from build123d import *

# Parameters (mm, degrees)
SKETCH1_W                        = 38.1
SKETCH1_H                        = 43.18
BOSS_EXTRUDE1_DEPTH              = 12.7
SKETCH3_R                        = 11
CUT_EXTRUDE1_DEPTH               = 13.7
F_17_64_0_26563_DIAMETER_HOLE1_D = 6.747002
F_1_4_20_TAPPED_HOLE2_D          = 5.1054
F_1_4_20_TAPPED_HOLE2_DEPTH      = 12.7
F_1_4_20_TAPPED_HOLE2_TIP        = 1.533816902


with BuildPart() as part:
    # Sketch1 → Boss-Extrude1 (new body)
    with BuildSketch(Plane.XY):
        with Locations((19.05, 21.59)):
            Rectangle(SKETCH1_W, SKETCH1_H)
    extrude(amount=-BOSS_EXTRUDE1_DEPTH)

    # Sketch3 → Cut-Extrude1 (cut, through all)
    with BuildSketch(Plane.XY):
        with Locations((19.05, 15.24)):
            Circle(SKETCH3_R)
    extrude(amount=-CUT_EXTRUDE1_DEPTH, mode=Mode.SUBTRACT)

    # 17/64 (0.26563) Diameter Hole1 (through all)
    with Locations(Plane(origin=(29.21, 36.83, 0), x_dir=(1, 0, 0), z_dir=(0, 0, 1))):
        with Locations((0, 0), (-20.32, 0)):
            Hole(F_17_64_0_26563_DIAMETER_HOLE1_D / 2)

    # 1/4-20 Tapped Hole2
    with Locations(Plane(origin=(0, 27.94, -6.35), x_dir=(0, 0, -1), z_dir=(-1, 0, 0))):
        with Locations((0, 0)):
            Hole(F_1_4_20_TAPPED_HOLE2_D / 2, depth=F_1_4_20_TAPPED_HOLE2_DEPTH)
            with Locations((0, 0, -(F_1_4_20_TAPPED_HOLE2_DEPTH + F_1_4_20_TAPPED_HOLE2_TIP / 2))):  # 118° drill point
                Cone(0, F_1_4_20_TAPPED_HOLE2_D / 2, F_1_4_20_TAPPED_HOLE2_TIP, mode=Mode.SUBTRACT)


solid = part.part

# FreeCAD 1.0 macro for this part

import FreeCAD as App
import Part
import Sketcher
from FreeCAD import Vector
Q = App.Units.Quantity


def add_polygon(sketch, points):
    """Adds a closed chain of lines whose ends are joined by coincident constraints."""
    first, n = sketch.GeometryCount, len(points)
    for a, b in zip(points, points[1:] + points[:1]):
        sketch.addGeometry(Part.LineSegment(App.Vector(*a, 0), App.Vector(*b, 0)), False)
    for i in range(n):
        sketch.addConstraint(Sketcher.Constraint("Coincident", first + i, 2, first + (i + 1) % n, 1))

doc = App.newDocument("Part")
body = doc.addObject("PartDesign::Body", "Body")

sketch1 = body.newObject("Sketcher::SketchObject", "Sketch")
sketch1.AttachmentSupport = (doc.getObject("XY_Plane"), [""])
sketch1.MapMode = "FlatFace"
add_polygon(sketch1, [(0, 43), (0, 0), (38, 0), (38, 43)])
sketch1.addConstraint(Sketcher.Constraint("Vertical", 0))
sketch1.addConstraint(Sketcher.Constraint("Horizontal", 1))
sketch1.addConstraint(Sketcher.Constraint("Vertical", 2))
sketch1.addConstraint(Sketcher.Constraint("Horizontal", 3))
sketch1.addConstraint(Sketcher.Constraint("Coincident", 0, 2, -1, 1))
sketch1.addConstraint(Sketcher.Constraint("DistanceX", 1, 1, 1, 2, Q("1.5 in")))
sketch1.addConstraint(Sketcher.Constraint("DistanceY", 0, 2, 0, 1, Q("1.7 in")))
pad1 = body.newObject("PartDesign::Pad", "Pad")
pad1.Profile = sketch1
pad1.Length = Q("0.5 in")
pad1.Reversed = True

sketch2 = body.newObject("Sketcher::SketchObject", "Sketch001")
sketch2.AttachmentSupport = (doc.getObject("XY_Plane"), [""])
sketch2.MapMode = "FlatFace"
sketch2.addGeometry(Part.Circle(Vector(19, 15, 0), Vector(0, 0, 1), 11), False)
sketch2.addConstraint(Sketcher.Constraint("DistanceY", -1, 1, 0, 3, Q("0.6 in")))
sketch2.addConstraint(Sketcher.Constraint("Diameter", 0, Q("22 mm")))
sketch2.addConstraint(Sketcher.Constraint("DistanceX", -1, 1, 0, 3, Q("0.75 in")))
pocket1 = body.newObject("PartDesign::Pocket", "Pocket")
pocket1.Profile = sketch2
pocket1.Type = "ThroughAll"

sketch3 = body.newObject("Sketcher::SketchObject", "Sketch002")
sketch3.AttachmentSupport = (doc.getObject("XY_Plane"), [""])
sketch3.MapMode = "FlatFace"
sketch3.addGeometry(Part.Circle(Vector(29.2, 36.8, 0), Vector(0, 0, 1), 3.4), False)
sketch3.addGeometry(Part.Circle(Vector(8.9, 36.8, 0), Vector(0, 0, 1), 3.4), False)
sketch3.addConstraint(Sketcher.Constraint("Equal", 0, 1))
sketch3.addConstraint(Sketcher.Constraint("Horizontal", 0, 3, 1, 3))
sketch3.addConstraint(Sketcher.Constraint("DistanceX", 1, 3, 0, 3, Q("0.8 in")))
sketch3.addConstraint(Sketcher.Constraint("DistanceX", -1, 1, 0, 3, Q("1.15 in")))
sketch3.addConstraint(Sketcher.Constraint("DistanceY", -1, 1, 0, 3, Q("1.45 in")))
sketch3.addConstraint(Sketcher.Constraint("Diameter", 0, Q("6.747002 mm")))
doc.recompute()
hole = body.newObject("PartDesign::Hole", "Hole")
hole.Profile = sketch3
hole.ThreadType = "None"
hole.Diameter = 6.747002
hole.DepthType = "ThroughAll"

sketch4 = body.newObject("Sketcher::SketchObject", "Sketch003")
sketch4.AttachmentSupport = (doc.getObject("YZ_Plane"), [""])
sketch4.MapMode = "FlatFace"
sketch4.addGeometry(Part.Circle(Vector(27.9, -6.3, 0), Vector(0, 0, 1), 2.6), False)
sketch4.addConstraint(Sketcher.Constraint("Diameter", 0, Q("0.201 in")))
sketch4.addConstraint(Sketcher.Constraint("DistanceX", -1, 1, 0, 3, Q("1.1 in")))
sketch4.addConstraint(Sketcher.Constraint("DistanceY", 0, 3, -1, 1, Q("0.25 in")))
doc.recompute()
hole2 = body.newObject("PartDesign::Hole", "Hole001")
hole2.Profile = sketch4
hole2.ThreadType = "None"
hole2.Diameter = Q("0.201 in")
hole2.DepthType = "Dimension"
hole2.Depth = Q("0.5 in")
hole2.DrillPoint = "Angled"
hole2.DrillPointAngle = 118
hole2.Reversed = True

doc.recompute()
